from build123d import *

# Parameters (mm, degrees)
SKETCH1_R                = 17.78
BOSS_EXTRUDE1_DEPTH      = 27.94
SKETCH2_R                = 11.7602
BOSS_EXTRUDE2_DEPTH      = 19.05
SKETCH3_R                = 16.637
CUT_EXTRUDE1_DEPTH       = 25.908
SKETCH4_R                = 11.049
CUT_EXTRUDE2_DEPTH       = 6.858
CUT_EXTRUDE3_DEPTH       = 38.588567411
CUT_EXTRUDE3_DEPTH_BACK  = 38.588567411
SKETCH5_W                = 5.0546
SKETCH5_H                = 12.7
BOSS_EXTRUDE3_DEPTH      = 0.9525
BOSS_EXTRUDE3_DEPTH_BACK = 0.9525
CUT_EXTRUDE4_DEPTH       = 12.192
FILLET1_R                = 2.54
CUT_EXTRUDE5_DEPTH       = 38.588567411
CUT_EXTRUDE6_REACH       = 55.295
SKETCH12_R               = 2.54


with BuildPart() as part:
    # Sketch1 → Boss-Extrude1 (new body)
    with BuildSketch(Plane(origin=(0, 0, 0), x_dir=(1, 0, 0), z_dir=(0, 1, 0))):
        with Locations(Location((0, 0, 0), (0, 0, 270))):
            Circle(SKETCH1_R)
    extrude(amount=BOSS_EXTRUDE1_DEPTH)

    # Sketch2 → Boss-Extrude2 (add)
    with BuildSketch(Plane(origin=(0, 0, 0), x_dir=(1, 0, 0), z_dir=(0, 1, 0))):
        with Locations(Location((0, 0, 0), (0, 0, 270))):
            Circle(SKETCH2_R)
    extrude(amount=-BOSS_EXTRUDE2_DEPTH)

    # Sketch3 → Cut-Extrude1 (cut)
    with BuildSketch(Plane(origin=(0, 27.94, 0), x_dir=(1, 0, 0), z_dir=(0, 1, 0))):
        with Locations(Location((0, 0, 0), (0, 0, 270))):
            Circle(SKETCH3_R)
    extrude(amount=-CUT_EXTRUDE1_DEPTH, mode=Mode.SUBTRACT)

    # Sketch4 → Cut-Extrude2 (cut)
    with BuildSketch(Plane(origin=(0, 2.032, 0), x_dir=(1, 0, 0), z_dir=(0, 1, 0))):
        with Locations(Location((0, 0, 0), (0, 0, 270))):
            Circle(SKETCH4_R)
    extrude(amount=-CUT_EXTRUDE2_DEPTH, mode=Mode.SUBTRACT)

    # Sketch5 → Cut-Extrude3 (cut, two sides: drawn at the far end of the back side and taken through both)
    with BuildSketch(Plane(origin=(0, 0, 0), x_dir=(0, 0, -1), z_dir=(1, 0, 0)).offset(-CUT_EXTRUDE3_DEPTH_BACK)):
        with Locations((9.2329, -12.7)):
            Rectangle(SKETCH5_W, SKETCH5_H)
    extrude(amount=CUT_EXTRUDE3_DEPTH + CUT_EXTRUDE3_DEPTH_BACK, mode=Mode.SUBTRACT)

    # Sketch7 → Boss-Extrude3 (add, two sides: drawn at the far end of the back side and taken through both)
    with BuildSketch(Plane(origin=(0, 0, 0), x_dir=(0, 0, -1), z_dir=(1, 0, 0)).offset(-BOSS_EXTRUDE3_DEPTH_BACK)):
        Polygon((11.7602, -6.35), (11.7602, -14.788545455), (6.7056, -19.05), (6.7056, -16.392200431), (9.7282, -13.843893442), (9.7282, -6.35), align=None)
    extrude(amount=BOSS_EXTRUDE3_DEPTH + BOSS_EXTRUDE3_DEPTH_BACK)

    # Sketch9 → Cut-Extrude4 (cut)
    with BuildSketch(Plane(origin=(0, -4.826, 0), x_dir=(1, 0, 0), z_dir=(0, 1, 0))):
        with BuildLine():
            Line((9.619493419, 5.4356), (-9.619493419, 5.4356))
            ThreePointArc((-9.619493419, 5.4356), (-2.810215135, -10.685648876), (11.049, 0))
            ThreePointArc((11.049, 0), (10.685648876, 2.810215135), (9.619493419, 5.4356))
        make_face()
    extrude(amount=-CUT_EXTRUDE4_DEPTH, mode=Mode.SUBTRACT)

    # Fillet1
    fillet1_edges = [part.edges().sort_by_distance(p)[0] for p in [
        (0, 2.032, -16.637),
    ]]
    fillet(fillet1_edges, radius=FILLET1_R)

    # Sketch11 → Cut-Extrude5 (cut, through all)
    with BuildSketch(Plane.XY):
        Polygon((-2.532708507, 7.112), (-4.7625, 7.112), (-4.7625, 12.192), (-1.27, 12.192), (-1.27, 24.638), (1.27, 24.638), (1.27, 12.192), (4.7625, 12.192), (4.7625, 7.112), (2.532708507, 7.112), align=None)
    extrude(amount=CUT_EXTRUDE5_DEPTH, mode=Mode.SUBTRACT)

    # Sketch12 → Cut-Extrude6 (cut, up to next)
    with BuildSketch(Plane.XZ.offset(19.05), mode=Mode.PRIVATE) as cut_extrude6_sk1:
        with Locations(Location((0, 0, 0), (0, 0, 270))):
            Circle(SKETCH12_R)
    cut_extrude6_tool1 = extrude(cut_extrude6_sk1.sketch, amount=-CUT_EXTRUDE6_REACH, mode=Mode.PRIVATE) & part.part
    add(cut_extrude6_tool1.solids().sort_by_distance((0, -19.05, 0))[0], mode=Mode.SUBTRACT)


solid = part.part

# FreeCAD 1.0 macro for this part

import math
import FreeCAD as App
import Part
import Sketcher
from FreeCAD import Vector
Q = App.Units.Quantity


def edges_at(feature, points):
    """Names of the edges that pass closest to the given points."""
    edges = feature.Shape.Edges
    near = lambda p: min(range(len(edges)), key=lambda i: edges[i].distToShape(Part.Vertex(*p))[0])
    return sorted({f"Edge{near(p) + 1}" for p in points})


def add_polygon(sketch, points):
    """Adds a closed chain of lines whose ends are joined by coincident constraints."""
    first, n = sketch.GeometryCount, len(points)
    for a, b in zip(points, points[1:] + points[:1]):
        sketch.addGeometry(Part.LineSegment(App.Vector(*a, 0), App.Vector(*b, 0)), False)
    for i in range(n):
        sketch.addConstraint(Sketcher.Constraint("Coincident", first + i, 2, first + (i + 1) % n, 1))

doc = App.newDocument("Part")
body = doc.addObject("PartDesign::Body", "Body")

# Sketch on XZ plane
sketch1 = doc.addObject("Sketcher::SketchObject", "Sketch")
body.addObject(sketch1)
sketch1.AttachmentSupport = (doc.XZ_Plane, [""])
sketch1.MapMode = "FlatFace"
sketch1.addGeometry(Part.Circle(Vector(0, 0, 0), Vector(0, 0, 1), 18), False)
sketch1.addConstraint(Sketcher.Constraint("Coincident", 0, 3, -1, 1))
sketch1.addConstraint(Sketcher.Constraint("Diameter", 0, Q("1.4 in")))
pad1 = doc.addObject("PartDesign::Pad", "Pad")
body.addObject(pad1)
pad1.Profile = sketch1
pad1.Length = Q("1.1 in")
pad1.Reversed = True

# Sketch on XZ plane
sketch2 = doc.addObject("Sketcher::SketchObject", "Sketch001")
body.addObject(sketch2)
sketch2.AttachmentSupport = (doc.XZ_Plane, [""])
sketch2.MapMode = "FlatFace"
sketch2.addGeometry(Part.Circle(Vector(0, 0, 0), Vector(0, 0, 1), 12), False)
sketch2.addConstraint(Sketcher.Constraint("Coincident", 0, 3, -1, 1))
sketch2.addConstraint(Sketcher.Constraint("Diameter", 0, Q("0.926 in")))
pad2 = doc.addObject("PartDesign::Pad", "Pad001")
body.addObject(pad2)
pad2.Profile = sketch2
pad2.Length = Q("0.75 in")

# Sketch on XZ plane
sketch3 = doc.addObject("Sketcher::SketchObject", "Sketch002")
body.addObject(sketch3)
sketch3.AttachmentSupport = (doc.XZ_Plane, [""])
sketch3.MapMode = "FlatFace"
sketch3.AttachmentOffset = App.Placement(Vector(0, 0, -1.1 * 25.4), App.Rotation())
sketch3.addGeometry(Part.Circle(Vector(0, 0, 0), Vector(0, 0, 1), 17), False)
sketch3.addConstraint(Sketcher.Constraint("Coincident", 0, 3, -1, 1))
sketch3.addConstraint(Sketcher.Constraint("Diameter", 0, Q("1.31 in")))
pocket1 = doc.addObject("PartDesign::Pocket", "Pocket")
body.addObject(pocket1)
pocket1.Profile = sketch3
pocket1.Length = Q("1.02 in")
pocket1.Reversed = True

# Sketch on XZ plane
sketch4 = doc.addObject("Sketcher::SketchObject", "Sketch003")
body.addObject(sketch4)
sketch4.AttachmentSupport = (doc.XZ_Plane, [""])
sketch4.MapMode = "FlatFace"
sketch4.AttachmentOffset = App.Placement(Vector(0, 0, -0.08 * 25.4), App.Rotation())
sketch4.addGeometry(Part.Circle(Vector(0, 0, 0), Vector(0, 0, 1), 11), False)
sketch4.addConstraint(Sketcher.Constraint("Coincident", 0, 3, -1, 1))
sketch4.addConstraint(Sketcher.Constraint("Diameter", 0, Q("0.87 in")))
pocket2 = doc.addObject("PartDesign::Pocket", "Pocket001")
body.addObject(pocket2)
pocket2.Profile = sketch4
pocket2.Length = Q("0.27 in")
pocket2.Reversed = True

# Sketch on YZ plane
sketch5 = doc.addObject("Sketcher::SketchObject", "Sketch004")
body.addObject(sketch5)
sketch5.AttachmentSupport = (doc.YZ_Plane, [""])
sketch5.MapMode = "FlatFace"
add_polygon(sketch5, [(-6, -7), (-19, -7), (-19, -12), (-6, -12)])  # lines 0-3
sketch5.addConstraint(Sketcher.Constraint("Horizontal", 0))
sketch5.addConstraint(Sketcher.Constraint("Vertical", 1))
sketch5.addConstraint(Sketcher.Constraint("Horizontal", 2))
sketch5.addConstraint(Sketcher.Constraint("Vertical", 3))
sketch5.addConstraint(Sketcher.Constraint("DistanceX", 0, 2, 0, 1, Q("0.5 in")))
sketch5.addConstraint(Sketcher.Constraint("DistanceY", 1, 2, 1, 1, Q("0.199 in")))
sketch5.addConstraint(Sketcher.Constraint("DistanceX", 0, 2, -1, 1, Q("0.75 in")))
sketch5.addConstraint(Sketcher.Constraint("DistanceY", 0, 2, -1, 1, Q("0.264 in")))
pocket3 = doc.addObject("PartDesign::Pocket", "Pocket002")
body.addObject(pocket3)
pocket3.Profile = sketch5
pocket3.Type = "ThroughAll"
pocket3.Midplane = True

# Sketch on YZ plane
sketch6 = doc.addObject("Sketcher::SketchObject", "Sketch005")
body.addObject(sketch6)
sketch6.AttachmentSupport = (doc.YZ_Plane, [""])
sketch6.MapMode = "FlatFace"
add_polygon(sketch6, [(-14.8, -11.8), (-6.3, -11.8), (-6.3, -9.7), (-13.8, -9.7), (-16.4, -6.7), (-19.1, -6.7)])  # lines 0-5
sketch6.addConstraint(Sketcher.Constraint("Horizontal", 0))
sketch6.addConstraint(Sketcher.Constraint("Vertical", 1))
sketch6.addConstraint(Sketcher.Constraint("Horizontal", 2))
sketch6.addConstraint(Sketcher.Constraint("Horizontal", 4))
sketch6.addConstraint(Sketcher.Constraint("Parallel", 3, 5))
sketch6.addConstraint(Sketcher.Constraint("DistanceY", 1, 1, 1, 2, Q("0.08 in")))
sketch6.addConstraint(Sketcher.Constraint("DistanceX", 4, 2, 1, 2, Q("0.5 in")))
sketch6.addConstraint(Sketcher.Constraint("DistanceX", 0, 2, -1, 1, Q("0.25 in")))
sketch6.addConstraint(Sketcher.Constraint("DistanceY", 0, 2, -1, 1, Q("0.463 in")))
sketch6.addConstraint(Sketcher.Constraint("DistanceY", 3, 2, -1, 1, Q("0.264 in")))
sketch6.addConstraint(Sketcher.Constraint("DistanceX", 4, 2, 4, 1, 2.6578))
sketch6.addConstraint(Sketcher.Constraint("DistanceX", 0, 1, 0, 2, 8.438545))
pad3 = doc.addObject("PartDesign::Pad", "Pad002")
body.addObject(pad3)
pad3.Profile = sketch6
pad3.Type = "TwoLengths"
pad3.Length = Q("0.0375 in")
pad3.Length2 = Q("0.0375 in")

# Sketch on XZ plane
sketch7 = doc.addObject("Sketcher::SketchObject", "Sketch006")
body.addObject(sketch7)
sketch7.AttachmentSupport = (doc.XZ_Plane, [""])
sketch7.MapMode = "FlatFace"
sketch7.AttachmentOffset = App.Placement(Vector(0, 0, 0.19 * 25.4), App.Rotation())
sketch7.addGeometry(Part.LineSegment(Vector(10, -5, 0), Vector(-10, -5, 0)), False)
sketch7.addGeometry(Part.ArcOfCircle(Part.Circle(Vector(0, 0, 0), Vector(0, 0, 1), 11), math.radians(0), math.radians(209)), False)
sketch7.addGeometry(Part.ArcOfCircle(Part.Circle(Vector(0, 0, 0), Vector(0, 0, 1), 11), math.radians(-29), math.radians(0)), False)
sketch7.addConstraint(Sketcher.Constraint("Coincident", 0, 2, 1, 2))
sketch7.addConstraint(Sketcher.Constraint("Tangent", 1, 1, 2, 2))
sketch7.addConstraint(Sketcher.Constraint("Coincident", 2, 1, 0, 1))
sketch7.addConstraint(Sketcher.Constraint("Horizontal", 0))
sketch7.addConstraint(Sketcher.Constraint("Coincident", 1, 3, -1, 1))
sketch7.addConstraint(Sketcher.Constraint("Equal", 1, 2))
sketch7.addConstraint(Sketcher.Constraint("PointOnObject", 1, 1, -1))
sketch7.addConstraint(Sketcher.Constraint("Radius", 1, Q("0.435 in")))
sketch7.addConstraint(Sketcher.Constraint("DistanceY", 0, 2, -1, 1, Q("0.214 in")))
pocket4 = doc.addObject("PartDesign::Pocket", "Pocket003")
body.addObject(pocket4)
pocket4.Profile = sketch7
pocket4.Length = Q("0.48 in")
pocket4.Reversed = True
doc.recompute()

fillet = doc.addObject("PartDesign::Fillet", "Fillet")
body.addObject(fillet)
fillet.Base = (pocket4, edges_at(pocket4, [(0, 2.032, -16.637)]))
fillet.Radius = Q("0.1 in")

# Sketch on XY plane
sketch8 = doc.addObject("Sketcher::SketchObject", "Sketch007")
body.addObject(sketch8)
sketch8.AttachmentSupport = (doc.XY_Plane, [""])
sketch8.MapMode = "FlatFace"
add_polygon(sketch8, [(-4.8, 7.1), (4.8, 7.1), (4.8, 12.2), (1.3, 12.2), (1.3, 24.6), (-1.3, 24.6), (-1.3, 12.2), (-4.8, 12.2)])  # lines 0-7
sketch8.addConstraint(Sketcher.Constraint("Horizontal", 0))
sketch8.addConstraint(Sketcher.Constraint("Vertical", 1))
sketch8.addConstraint(Sketcher.Constraint("Horizontal", 2))
sketch8.addConstraint(Sketcher.Constraint("Vertical", 3))
sketch8.addConstraint(Sketcher.Constraint("Horizontal", 4))
sketch8.addConstraint(Sketcher.Constraint("Vertical", 5))
sketch8.addConstraint(Sketcher.Constraint("Horizontal", 6))
sketch8.addConstraint(Sketcher.Constraint("Vertical", 7))
sketch8.addConstraint(Sketcher.Constraint("Symmetric", 2, 2, 5, 2, -2))
sketch8.addConstraint(Sketcher.Constraint("Equal", 2, 6))
sketch8.addConstraint(Sketcher.Constraint("DistanceX", 4, 2, 4, 1, Q("0.1 in")))
sketch8.addConstraint(Sketcher.Constraint("DistanceY", 1, 1, 1, 2, Q("0.2 in")))
sketch8.addConstraint(Sketcher.Constraint("DistanceY", 3, 1, 3, 2, Q("0.49 in")))
sketch8.addConstraint(Sketcher.Constraint("DistanceX", 0, 1, 0, 2, Q("0.375 in")))
sketch8.addConstraint(Sketcher.Constraint("DistanceY", -1, 1, 0, 2, Q("0.28 in")))
pocket5 = doc.addObject("PartDesign::Pocket", "Pocket004")
body.addObject(pocket5)
pocket5.Profile = sketch8
pocket5.Type = "ThroughAll"
pocket5.Reversed = True

# Sketch on XZ plane
sketch9 = doc.addObject("Sketcher::SketchObject", "Sketch008")
body.addObject(sketch9)
sketch9.AttachmentSupport = (doc.XZ_Plane, [""])
sketch9.MapMode = "FlatFace"
sketch9.AttachmentOffset = App.Placement(Vector(0, 0, 0.75 * 25.4), App.Rotation())
sketch9.addGeometry(Part.Circle(Vector(0, 0, 0), Vector(0, 0, 1), 2.5), False)
sketch9.addConstraint(Sketcher.Constraint("Coincident", 0, 3, -1, 1))
sketch9.addConstraint(Sketcher.Constraint("Diameter", 0, Q("0.2 in")))
pocket6 = doc.addObject("PartDesign::Pocket", "Pocket005")
body.addObject(pocket6)
pocket6.Profile = sketch9
pocket6.Type = "UpToFirst"

doc.recompute()
